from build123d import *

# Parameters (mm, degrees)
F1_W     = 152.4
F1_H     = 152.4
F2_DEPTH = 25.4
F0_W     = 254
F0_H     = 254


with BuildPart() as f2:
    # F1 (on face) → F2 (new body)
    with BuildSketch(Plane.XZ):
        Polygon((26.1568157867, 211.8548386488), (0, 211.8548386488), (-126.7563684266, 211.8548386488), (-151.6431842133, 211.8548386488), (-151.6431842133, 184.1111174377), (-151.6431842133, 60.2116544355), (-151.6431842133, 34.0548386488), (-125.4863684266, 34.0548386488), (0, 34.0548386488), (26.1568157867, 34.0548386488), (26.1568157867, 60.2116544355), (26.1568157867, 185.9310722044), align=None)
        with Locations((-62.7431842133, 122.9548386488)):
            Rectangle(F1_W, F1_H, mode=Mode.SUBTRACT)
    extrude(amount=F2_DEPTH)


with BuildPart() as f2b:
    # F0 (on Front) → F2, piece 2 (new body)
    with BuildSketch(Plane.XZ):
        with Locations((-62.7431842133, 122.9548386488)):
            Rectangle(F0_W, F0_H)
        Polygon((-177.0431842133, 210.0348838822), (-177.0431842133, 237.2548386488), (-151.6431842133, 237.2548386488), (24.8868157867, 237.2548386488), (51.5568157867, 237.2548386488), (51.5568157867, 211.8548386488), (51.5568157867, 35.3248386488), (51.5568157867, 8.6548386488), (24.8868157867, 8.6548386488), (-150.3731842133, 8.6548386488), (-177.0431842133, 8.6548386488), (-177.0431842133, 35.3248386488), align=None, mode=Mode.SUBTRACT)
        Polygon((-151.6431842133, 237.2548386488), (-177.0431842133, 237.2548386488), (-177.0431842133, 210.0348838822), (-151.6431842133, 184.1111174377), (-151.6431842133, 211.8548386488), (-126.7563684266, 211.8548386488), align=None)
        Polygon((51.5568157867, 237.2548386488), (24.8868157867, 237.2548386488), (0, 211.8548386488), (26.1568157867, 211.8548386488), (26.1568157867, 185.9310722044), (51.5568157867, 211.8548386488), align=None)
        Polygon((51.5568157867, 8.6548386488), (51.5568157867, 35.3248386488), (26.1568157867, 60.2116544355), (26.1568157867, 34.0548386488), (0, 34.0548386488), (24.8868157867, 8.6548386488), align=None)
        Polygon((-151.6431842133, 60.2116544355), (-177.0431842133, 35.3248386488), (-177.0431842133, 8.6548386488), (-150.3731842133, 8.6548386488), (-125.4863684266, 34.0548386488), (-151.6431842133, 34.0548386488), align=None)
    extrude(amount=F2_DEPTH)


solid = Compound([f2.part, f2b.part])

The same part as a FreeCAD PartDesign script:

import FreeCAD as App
import Part
import Sketcher
from FreeCAD import Vector
Q = App.Units.Quantity

doc = App.newDocument("Part")
body = doc.addObject("PartDesign::Body", "Body")

# Sketch on XZ plane
sketch1 = doc.addObject("Sketcher::SketchObject", "Sketch")
body.addObject(sketch1)
sketch1.AttachmentSupport = (doc.XZ_Plane, [""])
sketch1.MapMode = "FlatFace"
sketch1.addGeometry([
    Part.LineSegment(Vector(26, 212, 0), Vector(-152, 212, 0)),  # 0
    Part.LineSegment(Vector(-152, 212, 0), Vector(-152, 34, 0)),  # 1
    Part.LineSegment(Vector(-152, 34, 0), Vector(26, 34, 0)),  # 2
    Part.LineSegment(Vector(26, 34, 0), Vector(26, 212, 0)),  # 3
    Part.LineSegment(Vector(13, 47, 0), Vector(-139, 47, 0)),  # 4
    Part.LineSegment(Vector(-139, 47, 0), Vector(-139, 199, 0)),  # 5
    Part.LineSegment(Vector(-139, 199, 0), Vector(13, 199, 0)),  # 6
    Part.LineSegment(Vector(13, 199, 0), Vector(13, 47, 0)),  # 7
], False)
sketch1.addConstraint([
    Sketcher.Constraint("Coincident", 0, 2, 1, 1),
    Sketcher.Constraint("Coincident", 1, 2, 2, 1),
    Sketcher.Constraint("Coincident", 2, 2, 3, 1),
    Sketcher.Constraint("Coincident", 3, 2, 0, 1),
    Sketcher.Constraint("Coincident", 4, 2, 5, 1),
    Sketcher.Constraint("Coincident", 5, 2, 6, 1),
    Sketcher.Constraint("Coincident", 6, 2, 7, 1),
    Sketcher.Constraint("Coincident", 7, 2, 4, 1),
    Sketcher.Constraint("Horizontal", 0),
    Sketcher.Constraint("Vertical", 1),
    Sketcher.Constraint("Horizontal", 2),
    Sketcher.Constraint("Vertical", 3),
    Sketcher.Constraint("Horizontal", 4),
    Sketcher.Constraint("Vertical", 5),
    Sketcher.Constraint("Horizontal", 6),
    Sketcher.Constraint("Vertical", 7),
    Sketcher.Constraint("Equal", 2, 1),
    Sketcher.Constraint("Equal", 6, 5),
    Sketcher.Constraint("DistanceX", 0, 2, 0, 1, Q("7 in")),
    Sketcher.Constraint("DistanceX", 4, 2, 4, 1, Q("6 in")),
    Sketcher.Constraint("DistanceX", 1, 2, 4, 2, Q("0.5 in")),
    Sketcher.Constraint("DistanceY", 1, 2, 4, 2, Q("0.5 in")),
    Sketcher.Constraint("DistanceY", -1, 1, 0, 2, Q("211.854839 mm")),
    Sketcher.Constraint("DistanceX", 0, 2, -1, 1, Q("151.643184 mm")),
])
pad1 = doc.addObject("PartDesign::Pad", "Pad")
body.addObject(pad1)
pad1.Profile = sketch1
pad1.Length = Q("1 in")
body2 = doc.addObject("PartDesign::Body", "Body001")

# Sketch on XZ plane
sketch2 = doc.addObject("Sketcher::SketchObject", "Sketch001")
body2.addObject(sketch2)
sketch2.AttachmentSupport = (doc.getObject("XZ_Plane001"), [""])
sketch2.MapMode = "FlatFace"
sketch2.addGeometry([
    Part.LineSegment(Vector(-190, 250, 0), Vector(-190, -4, 0)),  # 0
    Part.LineSegment(Vector(-190, -4, 0), Vector(64, -4, 0)),  # 1
    Part.LineSegment(Vector(64, -4, 0), Vector(64, 250, 0)),  # 2
    Part.LineSegment(Vector(64, 250, 0), Vector(-190, 250, 0)),  # 3
    Part.LineSegment(Vector(-177, 35, 0), Vector(-177, 210, 0)),  # 4
    Part.LineSegment(Vector(-177, 210, 0), Vector(-152, 184, 0)),  # 5
    Part.LineSegment(Vector(-152, 184, 0), Vector(-152, 212, 0)),  # 6
    Part.LineSegment(Vector(-152, 212, 0), Vector(-127, 212, 0)),  # 7
    Part.LineSegment(Vector(-127, 212, 0), Vector(-152, 237, 0)),  # 8
    Part.LineSegment(Vector(-152, 237, 0), Vector(25, 237, 0)),  # 9
    Part.LineSegment(Vector(25, 237, 0), Vector(0, 212, 0)),  # 10
    Part.LineSegment(Vector(0, 212, 0), Vector(26, 212, 0)),  # 11
    Part.LineSegment(Vector(26, 212, 0), Vector(26, 186, 0)),  # 12
    Part.LineSegment(Vector(26, 186, 0), Vector(52, 212, 0)),  # 13
    Part.LineSegment(Vector(52, 212, 0), Vector(52, 35, 0)),  # 14
    Part.LineSegment(Vector(52, 35, 0), Vector(26, 60, 0)),  # 15
    Part.LineSegment(Vector(26, 60, 0), Vector(26, 34, 0)),  # 16
    Part.LineSegment(Vector(26, 34, 0), Vector(0, 34, 0)),  # 17
    Part.LineSegment(Vector(0, 34, 0), Vector(25, 9, 0)),  # 18
    Part.LineSegment(Vector(25, 9, 0), Vector(-150, 9, 0)),  # 19
    Part.LineSegment(Vector(-150, 9, 0), Vector(-125, 34, 0)),  # 20
    Part.LineSegment(Vector(-125, 34, 0), Vector(-152, 34, 0)),  # 21
    Part.LineSegment(Vector(-152, 34, 0), Vector(-152, 60, 0)),  # 22
    Part.LineSegment(Vector(-152, 60, 0), Vector(-177, 35, 0)),  # 23
], False)
sketch2.addConstraint([
    Sketcher.Constraint("Coincident", 0, 2, 1, 1),
    Sketcher.Constraint("Coincident", 1, 2, 2, 1),
    Sketcher.Constraint("Coincident", 2, 2, 3, 1),
    Sketcher.Constraint("Coincident", 3, 2, 0, 1),
    Sketcher.Constraint("Coincident", 4, 2, 5, 1),
    Sketcher.Constraint("Coincident", 5, 2, 6, 1),
    Sketcher.Constraint("Coincident", 6, 2, 7, 1),
    Sketcher.Constraint("Coincident", 7, 2, 8, 1),
    Sketcher.Constraint("Coincident", 8, 2, 9, 1),
    Sketcher.Constraint("Coincident", 9, 2, 10, 1),
    Sketcher.Constraint("Coincident", 10, 2, 11, 1),
    Sketcher.Constraint("Coincident", 11, 2, 12, 1),
    Sketcher.Constraint("Coincident", 12, 2, 13, 1),
    Sketcher.Constraint("Coincident", 13, 2, 14, 1),
    Sketcher.Constraint("Coincident", 14, 2, 15, 1),
    Sketcher.Constraint("Coincident", 15, 2, 16, 1),
    Sketcher.Constraint("Coincident", 16, 2, 17, 1),
    Sketcher.Constraint("Coincident", 17, 2, 18, 1),
    Sketcher.Constraint("Coincident", 18, 2, 19, 1),
    Sketcher.Constraint("Coincident", 19, 2, 20, 1),
    Sketcher.Constraint("Coincident", 20, 2, 21, 1),
    Sketcher.Constraint("Coincident", 21, 2, 22, 1),
    Sketcher.Constraint("Coincident", 22, 2, 23, 1),
    Sketcher.Constraint("Coincident", 23, 2, 4, 1),
    Sketcher.Constraint("Vertical", 0),
    Sketcher.Constraint("Horizontal", 1),
    Sketcher.Constraint("Vertical", 2),
    Sketcher.Constraint("Horizontal", 3),
    Sketcher.Constraint("Vertical", 4),
    Sketcher.Constraint("Vertical", 6),
    Sketcher.Constraint("Horizontal", 7),
    Sketcher.Constraint("Horizontal", 9),
    Sketcher.Constraint("Horizontal", 11),
    Sketcher.Constraint("Vertical", 12),
    Sketcher.Constraint("Vertical", 14),
    Sketcher.Constraint("Vertical", 16),
    Sketcher.Constraint("Horizontal", 17),
    Sketcher.Constraint("Horizontal", 19),
    Sketcher.Constraint("Horizontal", 21),
    Sketcher.Constraint("Vertical", 22),
    Sketcher.Constraint("PointOnObject", 10, 2, -2),
    Sketcher.Constraint("PointOnObject", 17, 2, -2),
    Sketcher.Constraint("Parallel", 5, 8),
    Sketcher.Constraint("Parallel", 10, 13),
    Sketcher.Constraint("Perpendicular", 13, 15),
    Sketcher.Constraint("Parallel", 8, 18),
    Sketcher.Constraint("Perpendicular", 15, 20),
    Sketcher.Constraint("Perpendicular", 18, 23),
    Sketcher.Constraint("Horizontal", 7, 2, 10, 2),
    Sketcher.Constraint("Horizontal", 11, 2, 13, 2),
    Sketcher.Constraint("Horizontal", 17, 2, 20, 2),
    Sketcher.Constraint("Horizontal", 15, 2, 22, 2),
    Sketcher.Constraint("Horizontal", 14, 2, 23, 2),
    Sketcher.Constraint("Vertical", 6, 2, 8, 2),
    Sketcher.Constraint("Vertical", 12, 2, 15, 2),
    Sketcher.Constraint("Vertical", 9, 2, 18, 2),
    Sketcher.Constraint("Vertical", 8, 2, 21, 2),
    Sketcher.Constraint("Equal", 17, 21),
    Sketcher.Constraint("Equal", 3, 0),
    Sketcher.Constraint("Equal", 9, 14),
    Sketcher.Constraint("Equal", 21, 16),
    Sketcher.Constraint("Equal", 8, 10),
    Sketcher.Constraint("Equal", 10, 15),
    Sketcher.Constraint("DistanceX", 1, 1, 1, 2, Q("10 in")),
    Sketcher.Constraint("DistanceX", 19, 2, 19, 1, Q("6.9 in")),
    Sketcher.Constraint("DistanceX", 4, 2, 5, 2, Q("1 in")),
    Sketcher.Constraint("DistanceX", 6, 2, 11, 2, Q("7 in")),
    Sketcher.Constraint("Distance", 8, Q("1.4 in")),
    Sketcher.Constraint("DistanceX", 3, 2, 4, 2, Q("0.5 in")),
    Sketcher.Constraint("DistanceY", 6, 2, 3, 2, Q("1.5 in")),
    Sketcher.Constraint("DistanceY", 6, 1, 6, 2, Q("27.743721 mm")),
    Sketcher.Constraint("DistanceY", 0, 2, -1, 1, Q("4.045161 mm")),
])
pad2 = doc.addObject("PartDesign::Pad", "Pad001")
body2.addObject(pad2)
pad2.Profile = sketch2
pad2.Length = Q("1 in")

doc.recompute()
